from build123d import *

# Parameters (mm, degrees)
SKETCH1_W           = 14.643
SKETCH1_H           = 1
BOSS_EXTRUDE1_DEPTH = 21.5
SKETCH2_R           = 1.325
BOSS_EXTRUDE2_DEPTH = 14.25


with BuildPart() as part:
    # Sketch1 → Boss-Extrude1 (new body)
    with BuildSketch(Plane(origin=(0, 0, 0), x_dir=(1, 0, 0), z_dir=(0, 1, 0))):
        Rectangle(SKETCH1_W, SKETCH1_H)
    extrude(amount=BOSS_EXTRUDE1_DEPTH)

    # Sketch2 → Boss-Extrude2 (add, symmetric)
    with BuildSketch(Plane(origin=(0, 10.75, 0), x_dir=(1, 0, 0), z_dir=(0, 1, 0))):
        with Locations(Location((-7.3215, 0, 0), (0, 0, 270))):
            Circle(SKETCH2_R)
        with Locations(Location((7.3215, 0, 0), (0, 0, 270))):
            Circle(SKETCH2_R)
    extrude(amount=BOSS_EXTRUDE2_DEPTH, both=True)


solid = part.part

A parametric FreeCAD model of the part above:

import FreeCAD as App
import Part
import Sketcher

V = App.Vector
Q = App.Units.Quantity

doc = App.newDocument("Part")
body = doc.addObject("PartDesign::Body", "Body")

# Sketch on XZ plane
sketch1 = doc.addObject("Sketcher::SketchObject", "Sketch")
body.addObject(sketch1)
sketch1.AttachmentSupport = (doc.XZ_Plane, [""])
sketch1.MapMode = "FlatFace"
sketch1.addGeometry([
    Part.LineSegment(V(-7.3215, -0.5, 0), V(-7.3215, 0.5, 0)),
    Part.LineSegment(V(-7.3215, 0.5, 0), V(7.3215, 0.5, 0)),
    Part.LineSegment(V(7.3215, 0.5, 0), V(7.3215, -0.5, 0)),
    Part.LineSegment(V(7.3215, -0.5, 0), V(-7.3215, -0.5, 0)),
], False)
sketch1.addConstraint([
    Sketcher.Constraint("Coincident", 0, 2, 1, 1),
    Sketcher.Constraint("Coincident", 1, 2, 2, 1),
    Sketcher.Constraint("Coincident", 2, 2, 3, 1),
    Sketcher.Constraint("Coincident", 3, 2, 0, 1),
    Sketcher.Constraint("Vertical", 0),
    Sketcher.Constraint("Horizontal", 1),
    Sketcher.Constraint("Vertical", 2),
    Sketcher.Constraint("Horizontal", 3),
    Sketcher.Constraint("Symmetric", 0, 2, 2, 2, -1, 1),
    Sketcher.Constraint("DistanceY", 0, 1, 0, 2, Q("1 mm")),
    Sketcher.Constraint("DistanceX", 1, 1, 1, 2, Q("14.643 mm")),
])
pad1 = doc.addObject("PartDesign::Pad", "Pad")
body.addObject(pad1)
pad1.Profile = sketch1
pad1.Length = 21.5
pad1.Reversed = True

# Sketch on XZ plane
sketch2 = doc.addObject("Sketcher::SketchObject", "Sketch001")
body.addObject(sketch2)
sketch2.AttachmentSupport = (doc.XZ_Plane, [""])
sketch2.MapMode = "FlatFace"
sketch2.AttachmentOffset = App.Placement(V(0, 0, -10.75), App.Rotation())
sketch2.addGeometry([
    Part.Circle(V(-7.3215, 0, 0), V(0, 0, 1), 1.325),
    Part.Circle(V(7.3215, 0, 0), V(0, 0, 1), 1.325),
], False)
sketch2.addConstraint([
    Sketcher.Constraint("Equal", 0, 1),
    Sketcher.Constraint("Symmetric", 0, 3, 1, 3, -1, 1),
    Sketcher.Constraint("PointOnObject", 0, 3, -1),
    Sketcher.Constraint("Diameter", 0, Q("2.65 mm")),
    Sketcher.Constraint("DistanceX", 0, 3, 1, 3, Q("14.643 mm")),
])
pad2 = doc.addObject("PartDesign::Pad", "Pad001")
body.addObject(pad2)
pad2.Profile = sketch2
pad2.Length = 28.5
pad2.Midplane = True

doc.recompute()
